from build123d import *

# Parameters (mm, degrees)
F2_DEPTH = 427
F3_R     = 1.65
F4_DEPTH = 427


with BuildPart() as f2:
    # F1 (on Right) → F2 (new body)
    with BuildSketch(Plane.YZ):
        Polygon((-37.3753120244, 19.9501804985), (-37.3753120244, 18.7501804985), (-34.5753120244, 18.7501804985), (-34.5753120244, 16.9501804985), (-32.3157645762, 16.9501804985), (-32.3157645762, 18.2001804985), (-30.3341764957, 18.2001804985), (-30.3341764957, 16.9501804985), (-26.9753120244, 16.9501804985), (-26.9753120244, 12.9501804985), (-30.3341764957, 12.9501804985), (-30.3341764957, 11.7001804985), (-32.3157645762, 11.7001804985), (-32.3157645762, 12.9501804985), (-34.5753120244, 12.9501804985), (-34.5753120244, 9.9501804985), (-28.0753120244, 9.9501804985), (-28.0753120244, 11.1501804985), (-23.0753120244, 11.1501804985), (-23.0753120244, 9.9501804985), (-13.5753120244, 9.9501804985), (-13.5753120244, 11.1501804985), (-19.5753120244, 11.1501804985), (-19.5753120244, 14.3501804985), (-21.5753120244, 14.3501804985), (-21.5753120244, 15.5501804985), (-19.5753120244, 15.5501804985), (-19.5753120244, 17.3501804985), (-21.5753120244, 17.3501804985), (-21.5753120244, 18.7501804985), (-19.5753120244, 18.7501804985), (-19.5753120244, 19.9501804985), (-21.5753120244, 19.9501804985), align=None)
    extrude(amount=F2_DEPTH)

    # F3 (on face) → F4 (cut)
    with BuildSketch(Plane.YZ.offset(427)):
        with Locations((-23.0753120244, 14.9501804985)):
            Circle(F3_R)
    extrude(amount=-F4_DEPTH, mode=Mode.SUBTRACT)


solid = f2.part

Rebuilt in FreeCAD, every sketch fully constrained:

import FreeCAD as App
import Part
import Sketcher

V = App.Vector

doc = App.newDocument("Part")
body = doc.addObject("PartDesign::Body", "Body")

# Sketch on YZ plane
sketch1 = body.newObject("Sketcher::SketchObject", "Sketch")
sketch1.AttachmentSupport = (doc.getObject("YZ_Plane"), [""])
sketch1.MapMode = "FlatFace"
sketch1.addGeometry([
    Part.LineSegment(V(-37.4, 20, 0), V(-37.4, 18.8, 0)),  # 0
    Part.LineSegment(V(-37.4, 18.8, 0), V(-34.6, 18.8, 0)),  # 1
    Part.LineSegment(V(-34.6, 18.8, 0), V(-34.6, 17, 0)),  # 2
    Part.LineSegment(V(-34.6, 17, 0), V(-32.3, 17, 0)),  # 3
    Part.LineSegment(V(-32.3, 17, 0), V(-32.3, 18.2, 0)),  # 4
    Part.LineSegment(V(-32.3, 18.2, 0), V(-30.3, 18.2, 0)),  # 5
    Part.LineSegment(V(-30.3, 18.2, 0), V(-30.3, 17, 0)),  # 6
    Part.LineSegment(V(-30.3, 17, 0), V(-27, 17, 0)),  # 7
    Part.LineSegment(V(-27, 17, 0), V(-27, 13, 0)),  # 8
    Part.LineSegment(V(-27, 13, 0), V(-30.3, 13, 0)),  # 9
    Part.LineSegment(V(-30.3, 13, 0), V(-30.3, 11.7, 0)),  # 10
    Part.LineSegment(V(-30.3, 11.7, 0), V(-32.3, 11.7, 0)),  # 11
    Part.LineSegment(V(-32.3, 11.7, 0), V(-32.3, 13, 0)),  # 12
    Part.LineSegment(V(-32.3, 13, 0), V(-34.6, 13, 0)),  # 13
    Part.LineSegment(V(-34.6, 13, 0), V(-34.6, 10, 0)),  # 14
    Part.LineSegment(V(-34.6, 10, 0), V(-28.1, 10, 0)),  # 15
    Part.LineSegment(V(-28.1, 10, 0), V(-28.1, 11.2, 0)),  # 16
    Part.LineSegment(V(-28.1, 11.2, 0), V(-23.1, 11.2, 0)),  # 17
    Part.LineSegment(V(-23.1, 11.2, 0), V(-23.1, 10, 0)),  # 18
    Part.LineSegment(V(-23.1, 10, 0), V(-13.6, 10, 0)),  # 19
    Part.LineSegment(V(-13.6, 10, 0), V(-13.6, 11.2, 0)),  # 20
    Part.LineSegment(V(-13.6, 11.2, 0), V(-19.6, 11.2, 0)),  # 21
    Part.LineSegment(V(-19.6, 11.2, 0), V(-19.6, 14.4, 0)),  # 22
    Part.LineSegment(V(-19.6, 14.4, 0), V(-21.6, 14.4, 0)),  # 23
    Part.LineSegment(V(-21.6, 14.4, 0), V(-21.6, 15.6, 0)),  # 24
    Part.LineSegment(V(-21.6, 15.6, 0), V(-19.6, 15.6, 0)),  # 25
    Part.LineSegment(V(-19.6, 15.6, 0), V(-19.6, 17.4, 0)),  # 26
    Part.LineSegment(V(-19.6, 17.4, 0), V(-21.6, 17.4, 0)),  # 27
    Part.LineSegment(V(-21.6, 17.4, 0), V(-21.6, 18.8, 0)),  # 28
    Part.LineSegment(V(-21.6, 18.8, 0), V(-19.6, 18.8, 0)),  # 29
    Part.LineSegment(V(-19.6, 18.8, 0), V(-19.6, 20, 0)),  # 30
    Part.LineSegment(V(-19.6, 20, 0), V(-37.4, 20, 0)),  # 31
], False)
sketch1.addConstraint([
    Sketcher.Constraint("Coincident", 0, 2, 1, 1),
    Sketcher.Constraint("Coincident", 1, 2, 2, 1),
    Sketcher.Constraint("Coincident", 2, 2, 3, 1),
    Sketcher.Constraint("Coincident", 3, 2, 4, 1),
    Sketcher.Constraint("Coincident", 4, 2, 5, 1),
    Sketcher.Constraint("Coincident", 5, 2, 6, 1),
    Sketcher.Constraint("Coincident", 6, 2, 7, 1),
    Sketcher.Constraint("Coincident", 7, 2, 8, 1),
    Sketcher.Constraint("Coincident", 8, 2, 9, 1),
    Sketcher.Constraint("Coincident", 9, 2, 10, 1),
    Sketcher.Constraint("Coincident", 10, 2, 11, 1),
    Sketcher.Constraint("Coincident", 11, 2, 12, 1),
    Sketcher.Constraint("Coincident", 12, 2, 13, 1),
    Sketcher.Constraint("Coincident", 13, 2, 14, 1),
    Sketcher.Constraint("Coincident", 14, 2, 15, 1),
    Sketcher.Constraint("Coincident", 15, 2, 16, 1),
    Sketcher.Constraint("Coincident", 16, 2, 17, 1),
    Sketcher.Constraint("Coincident", 17, 2, 18, 1),
    Sketcher.Constraint("Coincident", 18, 2, 19, 1),
    Sketcher.Constraint("Coincident", 19, 2, 20, 1),
    Sketcher.Constraint("Coincident", 20, 2, 21, 1),
    Sketcher.Constraint("Coincident", 21, 2, 22, 1),
    Sketcher.Constraint("Coincident", 22, 2, 23, 1),
    Sketcher.Constraint("Coincident", 23, 2, 24, 1),
    Sketcher.Constraint("Coincident", 24, 2, 25, 1),
    Sketcher.Constraint("Coincident", 25, 2, 26, 1),
    Sketcher.Constraint("Coincident", 26, 2, 27, 1),
    Sketcher.Constraint("Coincident", 27, 2, 28, 1),
    Sketcher.Constraint("Coincident", 28, 2, 29, 1),
    Sketcher.Constraint("Coincident", 29, 2, 30, 1),
    Sketcher.Constraint("Coincident", 30, 2, 31, 1),
    Sketcher.Constraint("Coincident", 31, 2, 0, 1),
    Sketcher.Constraint("Vertical", 0),
    Sketcher.Constraint("Horizontal", 1),
    Sketcher.Constraint("Vertical", 2),
    Sketcher.Constraint("Horizontal", 3),
    Sketcher.Constraint("Vertical", 4),
    Sketcher.Constraint("Horizontal", 5),
    Sketcher.Constraint("Vertical", 6),
    Sketcher.Constraint("Horizontal", 7),
    Sketcher.Constraint("Vertical", 8),
    Sketcher.Constraint("Horizontal", 9),
    Sketcher.Constraint("Vertical", 10),
    Sketcher.Constraint("Horizontal", 11),
    Sketcher.Constraint("Vertical", 12),
    Sketcher.Constraint("Horizontal", 13),
    Sketcher.Constraint("Vertical", 14),
    Sketcher.Constraint("Horizontal", 15),
    Sketcher.Constraint("Vertical", 16),
    Sketcher.Constraint("Horizontal", 17),
    Sketcher.Constraint("Vertical", 18),
    Sketcher.Constraint("Horizontal", 19),
    Sketcher.Constraint("Vertical", 20),
    Sketcher.Constraint("Horizontal", 21),
    Sketcher.Constraint("Vertical", 22),
    Sketcher.Constraint("Horizontal", 23),
    Sketcher.Constraint("Vertical", 24),
    Sketcher.Constraint("Horizontal", 25),
    Sketcher.Constraint("Vertical", 26),
    Sketcher.Constraint("Horizontal", 27),
    Sketcher.Constraint("Vertical", 28),
    Sketcher.Constraint("Horizontal", 29),
    Sketcher.Constraint("Vertical", 30),
    Sketcher.Constraint("Horizontal", 31),
    Sketcher.Constraint("Horizontal", 3, 2, 6, 2),
    Sketcher.Constraint("Horizontal", 9, 2, 12, 2),
    Sketcher.Constraint("Horizontal", 15, 2, 18, 2),
    Sketcher.Constraint("Horizontal", 17, 2, 20, 2),
    Sketcher.Constraint("Horizontal", 1, 2, 28, 2),
    Sketcher.Constraint("Vertical", 6, 2, 9, 2),
    Sketcher.Constraint("Vertical", 4, 2, 11, 2),
    Sketcher.Constraint("Vertical", 2, 2, 13, 2),
    Sketcher.Constraint("Vertical", 22, 2, 25, 2),
    Sketcher.Constraint("Vertical", 24, 2, 27, 2),
    Sketcher.Constraint("Vertical", 26, 2, 29, 2),
    Sketcher.Constraint("Equal", 6, 10),
    Sketcher.Constraint("Equal", 0, 16),
    Sketcher.Constraint("Equal", 20, 24),
    Sketcher.Constraint("Equal", 2, 26),
    Sketcher.Constraint("DistanceX", 17, 1, 17, 2, 5.0),
    Sketcher.Constraint("DistanceX", 21, 2, 21, 1, 6.0),
    Sketcher.Constraint("DistanceX", 23, 2, 23, 1, 2.0),
    Sketcher.Constraint("DistanceY", 8, 2, 8, 1, 4.0),
    Sketcher.Constraint("DistanceY", 14, 2, 14, 1, 3.0),
    Sketcher.Constraint("DistanceX", 1, 1, 1, 2, 2.8),
    Sketcher.Constraint("DistanceX", 15, 1, 15, 2, 6.5),
    Sketcher.Constraint("DistanceX", 19, 1, 19, 2, 9.5),
    Sketcher.Constraint("DistanceY", 0, 2, 0, 1, 1.2),
    Sketcher.Constraint("DistanceY", 2, 2, 2, 1, 1.8),
    Sketcher.Constraint("DistanceY", 22, 1, 22, 2, 3.2),
    Sketcher.Constraint("DistanceY", 4, 1, 4, 2, 1.25),
    Sketcher.Constraint("DistanceX", 2, 2, 7, 2, 7.6),
    Sketcher.Constraint("DistanceX", 5, 1, 5, 2, 1.981588),
    Sketcher.Constraint("DistanceX", 3, 1, 3, 2, 2.259547),
    Sketcher.Constraint("DistanceY", -1, 1, 0, 2, 18.75018),
    Sketcher.Constraint("DistanceX", 0, 2, -1, 1, 37.375312),
])
pad1 = body.newObject("PartDesign::Pad", "Pad")
pad1.Profile = sketch1
pad1.Length = 427

# Sketch on YZ plane
sketch2 = body.newObject("Sketcher::SketchObject", "Sketch001")
sketch2.AttachmentSupport = (doc.getObject("YZ_Plane"), [""])
sketch2.MapMode = "FlatFace"
sketch2.AttachmentOffset = App.Placement(V(0, 0, 427), App.Rotation())
sketch2.addGeometry(Part.Circle(V(-23.1, 15, 0), V(0, 0, 1), 1.6), False)
sketch2.addConstraint([
    Sketcher.Constraint("Diameter", 0, 3.3),
    Sketcher.Constraint("DistanceY", -1, 1, 0, 3, 14.95018),
    Sketcher.Constraint("DistanceX", 0, 3, -1, 1, 23.075312),
])
pocket1 = body.newObject("PartDesign::Pocket", "Pocket")
pocket1.Profile = sketch2
pocket1.Length = 427

doc.recompute()
